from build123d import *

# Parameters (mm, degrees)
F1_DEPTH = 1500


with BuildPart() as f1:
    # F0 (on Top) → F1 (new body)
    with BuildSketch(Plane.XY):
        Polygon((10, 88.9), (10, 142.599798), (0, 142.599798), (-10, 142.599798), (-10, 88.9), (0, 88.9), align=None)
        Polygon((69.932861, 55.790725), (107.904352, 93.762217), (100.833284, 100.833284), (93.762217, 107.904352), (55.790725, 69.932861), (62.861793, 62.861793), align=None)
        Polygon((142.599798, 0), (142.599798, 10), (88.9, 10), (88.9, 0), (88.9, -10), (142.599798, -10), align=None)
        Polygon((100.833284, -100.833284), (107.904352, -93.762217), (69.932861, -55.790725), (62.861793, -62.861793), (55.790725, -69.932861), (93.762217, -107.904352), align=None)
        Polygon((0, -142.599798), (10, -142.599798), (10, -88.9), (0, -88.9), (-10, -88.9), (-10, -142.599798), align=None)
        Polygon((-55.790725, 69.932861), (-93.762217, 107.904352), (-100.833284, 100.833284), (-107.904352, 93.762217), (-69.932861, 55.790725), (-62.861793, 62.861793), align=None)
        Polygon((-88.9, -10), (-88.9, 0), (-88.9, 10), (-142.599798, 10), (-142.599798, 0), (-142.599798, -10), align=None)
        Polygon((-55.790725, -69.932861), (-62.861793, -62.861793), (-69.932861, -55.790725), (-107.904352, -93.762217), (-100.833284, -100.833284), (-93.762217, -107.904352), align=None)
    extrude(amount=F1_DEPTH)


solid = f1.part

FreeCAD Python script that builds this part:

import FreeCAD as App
import Part
import Sketcher

V = App.Vector

doc = App.newDocument("Part")
body = doc.addObject("PartDesign::Body", "Body")
body.AllowCompound = True

# Sketch on XY plane
sketch1 = body.newObject("Sketcher::SketchObject", "Sketch")
sketch1.AttachmentSupport = (doc.getObject("XY_Plane"), [""])
sketch1.MapMode = "FlatFace"
sketch1.addGeometry(Part.LineSegment(V(10, 89, 0), V(10, 143, 0)), False)
sketch1.addGeometry(Part.LineSegment(V(10, 143, 0), V(-10, 143, 0)), False)
sketch1.addGeometry(Part.LineSegment(V(-10, 143, 0), V(-10, 89, 0)), False)
sketch1.addGeometry(Part.LineSegment(V(-10, 89, 0), V(10, 89, 0)), False)
sketch1.addGeometry(Part.LineSegment(V(70, 56, 0), V(108, 94, 0)), False)
sketch1.addGeometry(Part.LineSegment(V(108, 94, 0), V(101, 101, 0)), False)
sketch1.addGeometry(Part.LineSegment(V(101, 101, 0), V(94, 108, 0)), False)
sketch1.addGeometry(Part.LineSegment(V(94, 108, 0), V(56, 70, 0)), False)
sketch1.addGeometry(Part.LineSegment(V(56, 70, 0), V(70, 56, 0)), False)
sketch1.addGeometry(Part.LineSegment(V(143, 10, 0), V(89, 10, 0)), False)
sketch1.addGeometry(Part.LineSegment(V(89, 10, 0), V(89, -10, 0)), False)
sketch1.addGeometry(Part.LineSegment(V(89, -10, 0), V(143, -10, 0)), False)
sketch1.addGeometry(Part.LineSegment(V(143, -10, 0), V(143, 10, 0)), False)
sketch1.addGeometry(Part.LineSegment(V(101, -101, 0), V(108, -94, 0)), False)
sketch1.addGeometry(Part.LineSegment(V(108, -94, 0), V(70, -56, 0)), False)
sketch1.addGeometry(Part.LineSegment(V(70, -56, 0), V(56, -70, 0)), False)
sketch1.addGeometry(Part.LineSegment(V(56, -70, 0), V(94, -108, 0)), False)
sketch1.addGeometry(Part.LineSegment(V(94, -108, 0), V(101, -101, 0)), False)
sketch1.addGeometry(Part.LineSegment(V(10, -143, 0), V(10, -89, 0)), False)
sketch1.addGeometry(Part.LineSegment(V(10, -89, 0), V(-10, -89, 0)), False)
sketch1.addGeometry(Part.LineSegment(V(-10, -89, 0), V(-10, -143, 0)), False)
sketch1.addGeometry(Part.LineSegment(V(-10, -143, 0), V(10, -143, 0)), False)
sketch1.addGeometry(Part.LineSegment(V(-56, 70, 0), V(-94, 108, 0)), False)
sketch1.addGeometry(Part.LineSegment(V(-94, 108, 0), V(-101, 101, 0)), False)
sketch1.addGeometry(Part.LineSegment(V(-101, 101, 0), V(-108, 94, 0)), False)
sketch1.addGeometry(Part.LineSegment(V(-108, 94, 0), V(-70, 56, 0)), False)
sketch1.addGeometry(Part.LineSegment(V(-70, 56, 0), V(-56, 70, 0)), False)
sketch1.addGeometry(Part.LineSegment(V(-89, -10, 0), V(-89, 10, 0)), False)
sketch1.addGeometry(Part.LineSegment(V(-89, 10, 0), V(-143, 10, 0)), False)
sketch1.addGeometry(Part.LineSegment(V(-143, 10, 0), V(-143, -10, 0)), False)
sketch1.addGeometry(Part.LineSegment(V(-143, -10, 0), V(-89, -10, 0)), False)
sketch1.addGeometry(Part.LineSegment(V(-56, -70, 0), V(-70, -56, 0)), False)
sketch1.addGeometry(Part.LineSegment(V(-70, -56, 0), V(-108, -94, 0)), False)
sketch1.addGeometry(Part.LineSegment(V(-108, -94, 0), V(-101, -101, 0)), False)
sketch1.addGeometry(Part.LineSegment(V(-101, -101, 0), V(-94, -108, 0)), False)
sketch1.addGeometry(Part.LineSegment(V(-94, -108, 0), V(-56, -70, 0)), False)
sketch1.addConstraint(Sketcher.Constraint("Coincident", 0, 2, 1, 1))
sketch1.addConstraint(Sketcher.Constraint("Coincident", 1, 2, 2, 1))
sketch1.addConstraint(Sketcher.Constraint("Coincident", 2, 2, 3, 1))
sketch1.addConstraint(Sketcher.Constraint("Coincident", 3, 2, 0, 1))
sketch1.addConstraint(Sketcher.Constraint("Coincident", 4, 2, 5, 1))
sketch1.addConstraint(Sketcher.Constraint("Coincident", 5, 2, 6, 1))
sketch1.addConstraint(Sketcher.Constraint("Coincident", 6, 2, 7, 1))
sketch1.addConstraint(Sketcher.Constraint("Coincident", 7, 2, 8, 1))
sketch1.addConstraint(Sketcher.Constraint("Coincident", 8, 2, 4, 1))
sketch1.addConstraint(Sketcher.Constraint("Coincident", 9, 2, 10, 1))
sketch1.addConstraint(Sketcher.Constraint("Coincident", 10, 2, 11, 1))
sketch1.addConstraint(Sketcher.Constraint("Coincident", 11, 2, 12, 1))
sketch1.addConstraint(Sketcher.Constraint("Coincident", 12, 2, 9, 1))
sketch1.addConstraint(Sketcher.Constraint("Coincident", 13, 2, 14, 1))
sketch1.addConstraint(Sketcher.Constraint("Coincident", 14, 2, 15, 1))
sketch1.addConstraint(Sketcher.Constraint("Coincident", 15, 2, 16, 1))
sketch1.addConstraint(Sketcher.Constraint("Coincident", 16, 2, 17, 1))
sketch1.addConstraint(Sketcher.Constraint("Coincident", 17, 2, 13, 1))
sketch1.addConstraint(Sketcher.Constraint("Coincident", 18, 2, 19, 1))
sketch1.addConstraint(Sketcher.Constraint("Coincident", 19, 2, 20, 1))
sketch1.addConstraint(Sketcher.Constraint("Coincident", 20, 2, 21, 1))
sketch1.addConstraint(Sketcher.Constraint("Coincident", 21, 2, 18, 1))
sketch1.addConstraint(Sketcher.Constraint("Coincident", 22, 2, 23, 1))
sketch1.addConstraint(Sketcher.Constraint("Coincident", 23, 2, 24, 1))
sketch1.addConstraint(Sketcher.Constraint("Coincident", 24, 2, 25, 1))
sketch1.addConstraint(Sketcher.Constraint("Coincident", 25, 2, 26, 1))
sketch1.addConstraint(Sketcher.Constraint("Coincident", 26, 2, 22, 1))
sketch1.addConstraint(Sketcher.Constraint("Coincident", 27, 2, 28, 1))
sketch1.addConstraint(Sketcher.Constraint("Coincident", 28, 2, 29, 1))
sketch1.addConstraint(Sketcher.Constraint("Coincident", 29, 2, 30, 1))
sketch1.addConstraint(Sketcher.Constraint("Coincident", 30, 2, 27, 1))
sketch1.addConstraint(Sketcher.Constraint("Coincident", 31, 2, 32, 1))
sketch1.addConstraint(Sketcher.Constraint("Coincident", 32, 2, 33, 1))
sketch1.addConstraint(Sketcher.Constraint("Coincident", 33, 2, 34, 1))
sketch1.addConstraint(Sketcher.Constraint("Coincident", 34, 2, 35, 1))
sketch1.addConstraint(Sketcher.Constraint("Coincident", 35, 2, 31, 1))
sketch1.addConstraint(Sketcher.Constraint("Vertical", 0))
sketch1.addConstraint(Sketcher.Constraint("Horizontal", 1))
sketch1.addConstraint(Sketcher.Constraint("Vertical", 2))
sketch1.addConstraint(Sketcher.Constraint("Horizontal", 3))
sketch1.addConstraint(Sketcher.Constraint("Horizontal", 9))
sketch1.addConstraint(Sketcher.Constraint("Vertical", 10))
sketch1.addConstraint(Sketcher.Constraint("Horizontal", 11))
sketch1.addConstraint(Sketcher.Constraint("Vertical", 12))
sketch1.addConstraint(Sketcher.Constraint("Vertical", 18))
sketch1.addConstraint(Sketcher.Constraint("Horizontal", 19))
sketch1.addConstraint(Sketcher.Constraint("Vertical", 20))
sketch1.addConstraint(Sketcher.Constraint("Horizontal", 21))
sketch1.addConstraint(Sketcher.Constraint("Vertical", 27))
sketch1.addConstraint(Sketcher.Constraint("Horizontal", 28))
sketch1.addConstraint(Sketcher.Constraint("Vertical", 29))
sketch1.addConstraint(Sketcher.Constraint("Horizontal", 30))
sketch1.addConstraint(Sketcher.Constraint("Symmetric", 2, 2, 18, 2, -1, 1))
sketch1.addConstraint(Sketcher.Constraint("Symmetric", 0, 2, 20, 2, -1, 1))
sketch1.addConstraint(Sketcher.Constraint("Symmetric", 16, 2, 22, 2, -1, 1))
sketch1.addConstraint(Sketcher.Constraint("Symmetric", 17, 2, 23, 2, -1, 1))
sketch1.addConstraint(Sketcher.Constraint("Symmetric", 13, 2, 24, 2, -1, 1))
sketch1.addConstraint(Sketcher.Constraint("Symmetric", 14, 2, 25, 2, -1, 1))
sketch1.addConstraint(Sketcher.Constraint("Symmetric", 15, 2, 26, 2, -1, 1))
sketch1.addConstraint(Sketcher.Constraint("Symmetric", 10, 2, 27, 2, -1, 1))
sketch1.addConstraint(Sketcher.Constraint("Symmetric", 12, 2, 29, 2, -1, 1))
sketch1.addConstraint(Sketcher.Constraint("Symmetric", 8, 2, 31, 2, -1, 1))
sketch1.addConstraint(Sketcher.Constraint("Symmetric", 4, 2, 32, 2, -1, 1))
sketch1.addConstraint(Sketcher.Constraint("Symmetric", 5, 2, 33, 2, -1, 1))
sketch1.addConstraint(Sketcher.Constraint("Symmetric", 6, 2, 34, 2, -1, 1))
sketch1.addConstraint(Sketcher.Constraint("Symmetric", 7, 2, 35, 2, -1, 1))
sketch1.addConstraint(Sketcher.Constraint("Symmetric", 6, 2, 22, 2, -2))
sketch1.addConstraint(Sketcher.Constraint("Symmetric", 5, 2, 23, 2, -2))
sketch1.addConstraint(Sketcher.Constraint("Symmetric", 4, 2, 24, 2, -2))
sketch1.addConstraint(Sketcher.Constraint("Symmetric", 8, 2, 25, 2, -2))
sketch1.addConstraint(Sketcher.Constraint("Symmetric", 7, 2, 26, 2, -2))
sketch1.addConstraint(Sketcher.Constraint("Perpendicular", 4, 5))
sketch1.addConstraint(Sketcher.Constraint("Parallel", 5, 6))
sketch1.addConstraint(Sketcher.Constraint("Perpendicular", 6, 7))
sketch1.addConstraint(Sketcher.Constraint("Perpendicular", 7, 8))
sketch1.addConstraint(Sketcher.Constraint("Perpendicular", 8, 13))
sketch1.addConstraint(Sketcher.Constraint("Horizontal", 12, 2, 27, 2))
sketch1.addConstraint(Sketcher.Constraint("Vertical", 3, 2, 18, 2))
sketch1.addConstraint(Sketcher.Constraint("Equal", 30, 0))
sketch1.addConstraint(Sketcher.Constraint("Equal", 21, 10))
sketch1.addConstraint(Sketcher.Constraint("Equal", 5, 6))
sketch1.addConstraint(Sketcher.Constraint("DistanceX", 1, 2, 1, 1, 20.0))
sketch1.addConstraint(Sketcher.Constraint("Distance", 5, 10.0))
sketch1.addConstraint(Sketcher.Constraint("DistanceY", -1, 1, 2, 2, 88.9))
sketch1.addConstraint(Sketcher.Constraint("DistanceX", -1, 1, 9, 2, 88.9))
sketch1.addConstraint(Sketcher.Constraint("Distance", 4, 53.699798))
sketch1.addConstraint(Sketcher.Constraint("DistanceY", -1, 1, 0, 2, 142.599798))
sketch1.addConstraint(Sketcher.Constraint("DistanceY", -1, 1, 7, 2, 69.932861))
sketch1.addConstraint(Sketcher.Constraint("DistanceX", -1, 1, 8, 2, 69.932861))
pad1 = body.newObject("PartDesign::Pad", "Pad")
pad1.Profile = sketch1
pad1.Length = 1500

doc.recompute()
